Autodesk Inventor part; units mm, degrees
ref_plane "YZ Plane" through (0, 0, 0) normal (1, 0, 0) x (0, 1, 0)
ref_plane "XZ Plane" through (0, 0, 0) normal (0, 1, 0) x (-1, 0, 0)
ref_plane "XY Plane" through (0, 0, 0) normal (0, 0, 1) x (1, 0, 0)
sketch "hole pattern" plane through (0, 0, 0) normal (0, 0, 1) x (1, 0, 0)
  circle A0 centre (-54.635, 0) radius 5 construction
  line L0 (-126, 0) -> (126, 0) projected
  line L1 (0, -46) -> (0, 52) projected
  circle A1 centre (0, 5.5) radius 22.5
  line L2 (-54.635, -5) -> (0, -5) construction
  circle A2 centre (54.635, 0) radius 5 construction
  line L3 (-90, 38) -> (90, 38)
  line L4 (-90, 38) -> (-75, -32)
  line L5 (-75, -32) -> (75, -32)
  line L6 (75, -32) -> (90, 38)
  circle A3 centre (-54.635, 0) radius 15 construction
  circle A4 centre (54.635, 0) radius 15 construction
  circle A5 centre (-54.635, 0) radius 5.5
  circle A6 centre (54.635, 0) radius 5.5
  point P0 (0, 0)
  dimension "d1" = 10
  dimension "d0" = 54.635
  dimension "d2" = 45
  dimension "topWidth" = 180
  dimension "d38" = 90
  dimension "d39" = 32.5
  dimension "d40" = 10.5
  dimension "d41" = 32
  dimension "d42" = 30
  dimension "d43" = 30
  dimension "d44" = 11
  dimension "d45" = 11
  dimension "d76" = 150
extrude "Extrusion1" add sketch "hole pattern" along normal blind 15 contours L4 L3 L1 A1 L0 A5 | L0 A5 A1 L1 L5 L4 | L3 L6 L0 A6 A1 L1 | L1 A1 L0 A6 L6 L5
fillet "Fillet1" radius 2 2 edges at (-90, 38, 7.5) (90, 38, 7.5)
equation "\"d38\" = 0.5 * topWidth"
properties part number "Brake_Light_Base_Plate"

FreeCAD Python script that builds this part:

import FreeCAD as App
import Part
import Sketcher

V = App.Vector


def edges_at(feature, points):
    """Names of the edges that pass closest to the given points."""
    edges = feature.Shape.Edges
    near = lambda p: min(range(len(edges)), key=lambda i: edges[i].distToShape(Part.Vertex(*p))[0])
    return sorted({f"Edge{near(p) + 1}" for p in points})

doc = App.newDocument("Part")
body = doc.addObject("PartDesign::Body", "Body")

# Sketch on XY plane
sketch1 = body.newObject("Sketcher::SketchObject", "Sketch")
sketch1.AttachmentSupport = (doc.getObject("XY_Plane"), [""])
sketch1.MapMode = "FlatFace"
sketch1.addGeometry([
    Part.LineSegment(V(-90, 38, 0), V(-75, -32, 0)),  # 0
    Part.LineSegment(V(-75, -32, 0), V(75, -32, 0)),  # 1
    Part.LineSegment(V(75, -32, 0), V(90, 38, 0)),  # 2
    Part.LineSegment(V(90, 38, 0), V(-90, 38, 0)),  # 3
    Part.Circle(V(0, 6, 0), V(0, 0, 1), 22),  # 4
    Part.Circle(V(-55, 0, 0), V(0, 0, 1), 6),  # 5
    Part.Circle(V(55, 0, 0), V(0, 0, 1), 6),  # 6
], False)
sketch1.addConstraint([
    Sketcher.Constraint("Coincident", 0, 2, 1, 1),
    Sketcher.Constraint("Coincident", 1, 2, 2, 1),
    Sketcher.Constraint("Coincident", 2, 2, 3, 1),
    Sketcher.Constraint("Coincident", 3, 2, 0, 1),
    Sketcher.Constraint("Horizontal", 1),
    Sketcher.Constraint("Horizontal", 3),
    Sketcher.Constraint("Equal", 5, 6),
    Sketcher.Constraint("Symmetric", 5, 3, 6, 3, -1, 1),
    Sketcher.Constraint("PointOnObject", 4, 3, -2),
    Sketcher.Constraint("PointOnObject", 5, 3, -1),
    Sketcher.Constraint("Equal", 0, 2),
    Sketcher.Constraint("Diameter", 4, 45.0),
    Sketcher.Constraint("Diameter", 5, 11.0),
    Sketcher.Constraint("DistanceX", 1, 1, 1, 2, 150.0),
    Sketcher.Constraint("DistanceX", 3, 2, 3, 1, 180.0),
    Sketcher.Constraint("DistanceY", 0, 2, -1, 1, 32.0),
    Sketcher.Constraint("DistanceX", -1, 1, 2, 2, 90.0),
    Sketcher.Constraint("DistanceY", 4, 3, 2, 2, 32.5),
    Sketcher.Constraint("DistanceX", 5, 3, -1, 1, 54.635),
    Sketcher.Constraint("DistanceY", -1, 1, 2, 2, 38.0),
])
pad1 = body.newObject("PartDesign::Pad", "Pad")
pad1.Profile = sketch1
pad1.Length = 15
doc.recompute()

fillet = body.newObject("PartDesign::Fillet", "Fillet")
fillet.Base = (pad1, edges_at(pad1, [(-90, 38, 7.5), (90, 38, 7.5)]))
fillet.Radius = 2

doc.recompute()
